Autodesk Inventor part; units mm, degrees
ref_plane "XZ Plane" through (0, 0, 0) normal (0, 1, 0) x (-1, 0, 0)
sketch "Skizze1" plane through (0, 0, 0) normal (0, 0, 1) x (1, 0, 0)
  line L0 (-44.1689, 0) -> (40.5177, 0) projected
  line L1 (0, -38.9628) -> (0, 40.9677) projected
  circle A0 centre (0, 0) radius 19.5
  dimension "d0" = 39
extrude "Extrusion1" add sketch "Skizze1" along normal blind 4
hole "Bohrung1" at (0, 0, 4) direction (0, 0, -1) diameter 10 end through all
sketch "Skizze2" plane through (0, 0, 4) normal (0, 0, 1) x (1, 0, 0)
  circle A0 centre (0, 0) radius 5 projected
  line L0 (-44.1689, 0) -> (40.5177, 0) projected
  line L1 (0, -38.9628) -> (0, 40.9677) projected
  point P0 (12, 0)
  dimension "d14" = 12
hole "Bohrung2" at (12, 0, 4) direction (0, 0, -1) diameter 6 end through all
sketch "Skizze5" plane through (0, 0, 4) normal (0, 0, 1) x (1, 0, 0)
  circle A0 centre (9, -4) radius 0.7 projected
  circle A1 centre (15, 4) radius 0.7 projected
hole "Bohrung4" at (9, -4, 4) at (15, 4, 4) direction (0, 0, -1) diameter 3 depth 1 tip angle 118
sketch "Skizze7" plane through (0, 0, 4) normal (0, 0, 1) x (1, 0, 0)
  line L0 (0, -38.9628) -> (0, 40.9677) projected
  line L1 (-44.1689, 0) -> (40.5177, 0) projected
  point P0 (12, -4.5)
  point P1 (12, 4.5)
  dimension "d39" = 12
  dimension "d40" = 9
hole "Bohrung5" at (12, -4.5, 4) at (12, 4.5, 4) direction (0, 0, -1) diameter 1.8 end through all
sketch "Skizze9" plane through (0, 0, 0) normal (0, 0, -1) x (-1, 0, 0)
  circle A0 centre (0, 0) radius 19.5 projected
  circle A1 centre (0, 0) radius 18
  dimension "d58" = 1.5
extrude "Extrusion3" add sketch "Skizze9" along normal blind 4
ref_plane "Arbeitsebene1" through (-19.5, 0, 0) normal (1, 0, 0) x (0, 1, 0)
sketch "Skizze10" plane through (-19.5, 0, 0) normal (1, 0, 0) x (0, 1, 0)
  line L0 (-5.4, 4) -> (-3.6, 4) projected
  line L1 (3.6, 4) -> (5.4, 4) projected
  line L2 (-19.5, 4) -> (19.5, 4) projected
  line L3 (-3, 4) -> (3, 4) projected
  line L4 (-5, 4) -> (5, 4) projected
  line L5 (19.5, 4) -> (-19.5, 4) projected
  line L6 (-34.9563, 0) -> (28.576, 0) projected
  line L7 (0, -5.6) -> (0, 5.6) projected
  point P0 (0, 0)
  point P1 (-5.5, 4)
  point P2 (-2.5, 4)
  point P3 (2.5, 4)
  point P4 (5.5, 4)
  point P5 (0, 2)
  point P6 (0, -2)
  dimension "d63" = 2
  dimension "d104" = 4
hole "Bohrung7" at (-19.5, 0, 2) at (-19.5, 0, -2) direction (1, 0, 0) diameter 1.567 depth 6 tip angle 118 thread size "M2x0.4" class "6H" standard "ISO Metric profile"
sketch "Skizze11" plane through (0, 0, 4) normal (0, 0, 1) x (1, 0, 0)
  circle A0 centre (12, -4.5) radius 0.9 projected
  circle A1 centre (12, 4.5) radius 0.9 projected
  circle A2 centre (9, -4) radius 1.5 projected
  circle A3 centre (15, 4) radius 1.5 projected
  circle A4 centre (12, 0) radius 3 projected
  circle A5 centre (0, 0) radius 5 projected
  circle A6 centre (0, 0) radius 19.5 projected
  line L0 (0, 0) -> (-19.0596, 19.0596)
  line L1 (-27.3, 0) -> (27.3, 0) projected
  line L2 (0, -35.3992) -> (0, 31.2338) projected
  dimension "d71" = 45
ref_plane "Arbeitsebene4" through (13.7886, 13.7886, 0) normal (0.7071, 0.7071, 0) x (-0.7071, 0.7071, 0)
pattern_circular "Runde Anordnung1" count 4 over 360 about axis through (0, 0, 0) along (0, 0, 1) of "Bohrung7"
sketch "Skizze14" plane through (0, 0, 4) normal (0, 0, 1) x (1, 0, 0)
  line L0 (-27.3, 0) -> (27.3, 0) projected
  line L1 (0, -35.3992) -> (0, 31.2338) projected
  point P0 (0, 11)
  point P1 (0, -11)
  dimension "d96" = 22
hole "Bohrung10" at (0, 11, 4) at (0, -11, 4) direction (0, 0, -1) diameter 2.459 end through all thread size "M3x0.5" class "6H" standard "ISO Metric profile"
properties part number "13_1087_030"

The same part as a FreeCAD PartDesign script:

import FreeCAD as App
import Part
import Sketcher
Q = App.Units.Quantity

doc = App.newDocument("Part")
body = doc.addObject("PartDesign::Body", "Body")

# Sketch on XY plane
sketch1 = body.newObject("Sketcher::SketchObject", "Sketch")
sketch1.AttachmentSupport = (doc.getObject("XY_Plane"), [""])
sketch1.MapMode = "FlatFace"
sketch1.addGeometry(Part.Circle(App.Vector(0, 0, 0), App.Vector(0, 0, 1), 20), False)
sketch1.addConstraint([
    Sketcher.Constraint("Coincident", 0, 3, -1, 1),
    Sketcher.Constraint("Diameter", 0, Q("39 mm")),
])
pad1 = body.newObject("PartDesign::Pad", "Pad")
pad1.Profile = sketch1
pad1.Length = 4

# Sketch on XY plane
sketch2 = body.newObject("Sketcher::SketchObject", "Sketch001")
sketch2.AttachmentSupport = (doc.getObject("XY_Plane"), [""])
sketch2.MapMode = "FlatFace"
sketch2.AttachmentOffset = App.Placement(App.Vector(0, 0, 4), App.Rotation())
sketch2.addGeometry(Part.Circle(App.Vector(0, 0, 0), App.Vector(0, 0, 1), 5), False)
sketch2.addConstraint([
    Sketcher.Constraint("Coincident", 0, 3, -1, 1),
    Sketcher.Constraint("Diameter", 0, Q("10 mm")),
])
doc.recompute()
hole = body.newObject("PartDesign::Hole", "Hole")
hole.Profile = sketch2
hole.ThreadType = "None"
hole.Diameter = 10
hole.DepthType = "ThroughAll"

# Sketch on XY plane
sketch3 = body.newObject("Sketcher::SketchObject", "Sketch002")
sketch3.AttachmentSupport = (doc.getObject("XY_Plane"), [""])
sketch3.MapMode = "FlatFace"
sketch3.AttachmentOffset = App.Placement(App.Vector(0, 0, 4), App.Rotation())
sketch3.addGeometry(Part.Circle(App.Vector(12, 0, 0), App.Vector(0, 0, 1), 3), False)
sketch3.addConstraint([
    Sketcher.Constraint("PointOnObject", 0, 3, -1),
    Sketcher.Constraint("Diameter", 0, Q("6 mm")),
    Sketcher.Constraint("DistanceX", -1, 1, 0, 3, Q("12 mm")),
])
doc.recompute()
hole2 = body.newObject("PartDesign::Hole", "Hole001")
hole2.Profile = sketch3
hole2.ThreadType = "None"
hole2.Diameter = 6
hole2.DepthType = "ThroughAll"

# Sketch on XY plane
sketch4 = body.newObject("Sketcher::SketchObject", "Sketch003")
sketch4.AttachmentSupport = (doc.getObject("XY_Plane"), [""])
sketch4.MapMode = "FlatFace"
sketch4.AttachmentOffset = App.Placement(App.Vector(0, 0, 4), App.Rotation())
sketch4.addGeometry([
    Part.Circle(App.Vector(9, -4, 0), App.Vector(0, 0, 1), 1.5),
    Part.Circle(App.Vector(15, 4, 0), App.Vector(0, 0, 1), 1.5),
], False)
sketch4.addConstraint([
    Sketcher.Constraint("Equal", 0, 1),
    Sketcher.Constraint("Diameter", 0, Q("3 mm")),
    Sketcher.Constraint("DistanceX", -1, 1, 0, 3, Q("9 mm")),
    Sketcher.Constraint("DistanceY", 0, 3, -1, 1, Q("4 mm")),
    Sketcher.Constraint("DistanceX", -1, 1, 1, 3, Q("15 mm")),
    Sketcher.Constraint("DistanceY", -1, 1, 1, 3, Q("4 mm")),
])
doc.recompute()
hole3 = body.newObject("PartDesign::Hole", "Hole002")
hole3.Profile = sketch4
hole3.ThreadType = "None"
hole3.Diameter = 3
hole3.DepthType = "Dimension"
hole3.Depth = 1
hole3.DrillPoint = "Angled"
hole3.DrillPointAngle = 118

# Sketch on XY plane
sketch5 = body.newObject("Sketcher::SketchObject", "Sketch004")
sketch5.AttachmentSupport = (doc.getObject("XY_Plane"), [""])
sketch5.MapMode = "FlatFace"
sketch5.AttachmentOffset = App.Placement(App.Vector(0, 0, 4), App.Rotation())
sketch5.addGeometry([
    Part.Circle(App.Vector(12, -4.5, 0), App.Vector(0, 0, 1), 0.9),
    Part.Circle(App.Vector(12, 4.5, 0), App.Vector(0, 0, 1), 0.9),
], False)
sketch5.addConstraint([
    Sketcher.Constraint("Equal", 0, 1),
    Sketcher.Constraint("Symmetric", 0, 3, 1, 3, -1),
    Sketcher.Constraint("Diameter", 0, Q("1.8 mm")),
    Sketcher.Constraint("DistanceX", -1, 1, 0, 3, Q("12 mm")),
    Sketcher.Constraint("DistanceY", 0, 3, 1, 3, Q("9 mm")),
])
doc.recompute()
hole4 = body.newObject("PartDesign::Hole", "Hole003")
hole4.Profile = sketch5
hole4.ThreadType = "None"
hole4.Diameter = 1.8
hole4.DepthType = "ThroughAll"

# Sketch on XY plane
sketch6 = body.newObject("Sketcher::SketchObject", "Sketch005")
sketch6.AttachmentSupport = (doc.getObject("XY_Plane"), [""])
sketch6.MapMode = "FlatFace"
sketch6.addGeometry([
    Part.Circle(App.Vector(0, 0, 0), App.Vector(0, 0, 1), 20),
    Part.Circle(App.Vector(0, 0, 0), App.Vector(0, 0, 1), 18),
], False)
sketch6.addConstraint([
    Sketcher.Constraint("Coincident", 0, 3, -1, 1),
    Sketcher.Constraint("Coincident", 1, 3, -1, 1),
    Sketcher.Constraint("Diameter", 0, Q("39 mm")),
    Sketcher.Constraint("Diameter", 1, Q("36 mm")),
])
pad2 = body.newObject("PartDesign::Pad", "Pad001")
pad2.Profile = sketch6
pad2.Length = 4
pad2.Reversed = True

# Sketch on YZ plane
sketch7 = body.newObject("Sketcher::SketchObject", "Sketch006")
sketch7.AttachmentSupport = (doc.getObject("YZ_Plane"), [""])
sketch7.MapMode = "FlatFace"
sketch7.AttachmentOffset = App.Placement(App.Vector(0, 0, -19.5), App.Rotation())
sketch7.addGeometry([
    Part.Circle(App.Vector(0, 2, 0), App.Vector(0, 0, 1), 0.8),
    Part.Circle(App.Vector(0, -2, 0), App.Vector(0, 0, 1), 0.8),
], False)
sketch7.addConstraint([
    Sketcher.Constraint("Equal", 0, 1),
    Sketcher.Constraint("Symmetric", 0, 3, 1, 3, -1, 1),
    Sketcher.Constraint("PointOnObject", 0, 3, -2),
    Sketcher.Constraint("Diameter", 0, Q("1.567 mm")),
    Sketcher.Constraint("DistanceY", -1, 1, 0, 3, Q("2 mm")),
])
doc.recompute()
hole5 = body.newObject("PartDesign::Hole", "Hole004")
hole5.Profile = sketch7
hole5.ThreadType = "None"
hole5.Diameter = 1.567
hole5.DepthType = "Dimension"
hole5.Depth = 6
hole5.DrillPoint = "Angled"
hole5.DrillPointAngle = 118
hole5.Reversed = True
doc.recompute()

polarpattern = body.newObject("PartDesign::PolarPattern", "PolarPattern")
polarpattern.Originals = [hole5]
polarpattern.Axis = (doc.getObject("Z_Axis"), [""])
polarpattern.Angle = 360
polarpattern.Occurrences = 4
body.Tip = polarpattern

# Sketch on XY plane
sketch8 = body.newObject("Sketcher::SketchObject", "Sketch007")
sketch8.AttachmentSupport = (doc.getObject("XY_Plane"), [""])
sketch8.MapMode = "FlatFace"
sketch8.AttachmentOffset = App.Placement(App.Vector(0, 0, 4), App.Rotation())
sketch8.addGeometry([
    Part.Circle(App.Vector(0, 11, 0), App.Vector(0, 0, 1), 1.2),
    Part.Circle(App.Vector(0, -11, 0), App.Vector(0, 0, 1), 1.2),
], False)
sketch8.addConstraint([
    Sketcher.Constraint("Equal", 0, 1),
    Sketcher.Constraint("Symmetric", 0, 3, 1, 3, -1, 1),
    Sketcher.Constraint("PointOnObject", 0, 3, -2),
    Sketcher.Constraint("Diameter", 0, Q("2.459 mm")),
    Sketcher.Constraint("DistanceY", -1, 1, 0, 3, Q("11 mm")),
])
doc.recompute()
hole6 = body.newObject("PartDesign::Hole", "Hole005")
hole6.Profile = sketch8
hole6.ThreadType = "None"
hole6.Diameter = 2.459
hole6.DepthType = "ThroughAll"

doc.recompute()
